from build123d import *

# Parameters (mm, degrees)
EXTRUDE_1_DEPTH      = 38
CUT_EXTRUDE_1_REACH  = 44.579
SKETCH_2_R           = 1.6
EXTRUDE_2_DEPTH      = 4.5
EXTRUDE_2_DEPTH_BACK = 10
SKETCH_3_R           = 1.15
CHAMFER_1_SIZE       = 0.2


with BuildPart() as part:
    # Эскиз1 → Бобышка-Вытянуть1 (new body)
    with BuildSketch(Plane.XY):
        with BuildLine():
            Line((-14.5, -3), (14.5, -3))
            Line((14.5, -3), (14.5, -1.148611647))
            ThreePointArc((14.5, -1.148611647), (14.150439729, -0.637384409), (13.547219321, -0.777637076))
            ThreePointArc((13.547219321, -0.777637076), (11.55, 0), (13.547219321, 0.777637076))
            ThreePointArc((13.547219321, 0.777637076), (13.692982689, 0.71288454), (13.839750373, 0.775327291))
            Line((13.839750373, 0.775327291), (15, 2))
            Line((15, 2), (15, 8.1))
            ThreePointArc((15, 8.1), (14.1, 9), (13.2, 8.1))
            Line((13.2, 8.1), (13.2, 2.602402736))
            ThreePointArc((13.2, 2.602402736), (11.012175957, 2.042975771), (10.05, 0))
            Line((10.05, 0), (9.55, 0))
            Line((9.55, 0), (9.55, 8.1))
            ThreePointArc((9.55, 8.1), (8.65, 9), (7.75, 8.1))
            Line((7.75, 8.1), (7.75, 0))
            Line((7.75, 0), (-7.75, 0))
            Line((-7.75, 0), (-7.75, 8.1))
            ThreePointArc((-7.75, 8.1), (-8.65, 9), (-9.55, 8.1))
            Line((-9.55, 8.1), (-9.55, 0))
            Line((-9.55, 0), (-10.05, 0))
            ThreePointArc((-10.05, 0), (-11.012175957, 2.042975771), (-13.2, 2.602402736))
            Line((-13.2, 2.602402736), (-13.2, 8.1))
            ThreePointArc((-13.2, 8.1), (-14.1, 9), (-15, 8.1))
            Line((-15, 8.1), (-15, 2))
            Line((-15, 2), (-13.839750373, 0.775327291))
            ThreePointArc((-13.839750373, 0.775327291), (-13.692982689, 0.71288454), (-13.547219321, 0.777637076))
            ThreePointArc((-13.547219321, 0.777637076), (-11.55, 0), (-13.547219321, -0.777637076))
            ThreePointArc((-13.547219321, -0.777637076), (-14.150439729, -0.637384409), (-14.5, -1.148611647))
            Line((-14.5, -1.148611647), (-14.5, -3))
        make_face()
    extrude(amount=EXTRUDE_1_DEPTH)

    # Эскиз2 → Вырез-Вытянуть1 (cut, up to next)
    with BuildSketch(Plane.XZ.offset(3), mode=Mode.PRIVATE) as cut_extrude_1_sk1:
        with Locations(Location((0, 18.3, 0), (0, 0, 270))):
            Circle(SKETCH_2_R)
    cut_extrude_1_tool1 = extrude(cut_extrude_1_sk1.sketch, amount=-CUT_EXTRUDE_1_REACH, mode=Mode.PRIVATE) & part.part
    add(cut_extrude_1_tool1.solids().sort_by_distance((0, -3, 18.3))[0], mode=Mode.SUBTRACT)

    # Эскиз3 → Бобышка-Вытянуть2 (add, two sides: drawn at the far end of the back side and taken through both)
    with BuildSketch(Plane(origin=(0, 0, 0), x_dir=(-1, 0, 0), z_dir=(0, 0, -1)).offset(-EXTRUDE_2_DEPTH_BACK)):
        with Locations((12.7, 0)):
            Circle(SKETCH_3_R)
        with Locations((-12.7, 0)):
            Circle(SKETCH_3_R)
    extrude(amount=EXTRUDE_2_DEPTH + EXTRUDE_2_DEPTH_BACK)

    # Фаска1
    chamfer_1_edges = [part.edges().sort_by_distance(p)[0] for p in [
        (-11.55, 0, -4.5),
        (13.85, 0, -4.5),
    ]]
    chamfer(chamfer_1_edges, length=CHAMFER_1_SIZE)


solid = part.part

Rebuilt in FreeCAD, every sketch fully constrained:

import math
import FreeCAD as App
import Part
import Sketcher


def edges_at(feature, points):
    """Names of the edges that pass closest to the given points."""
    edges = feature.Shape.Edges
    near = lambda p: min(range(len(edges)), key=lambda i: edges[i].distToShape(Part.Vertex(*p))[0])
    return sorted({f"Edge{near(p) + 1}" for p in points})

doc = App.newDocument("Part")
body = doc.addObject("PartDesign::Body", "Body")

# Sketch on XY plane
sketch1 = body.newObject("Sketcher::SketchObject", "Sketch")
sketch1.AttachmentSupport = (doc.getObject("XY_Plane"), [""])
sketch1.MapMode = "FlatFace"
sketch1.addGeometry(Part.LineSegment(App.Vector(-14.5, -3, 0), App.Vector(14.5, -3, 0)), False)
sketch1.addGeometry(Part.LineSegment(App.Vector(14.5, -3, 0), App.Vector(14.5, -1.15, 0)), False)
sketch1.addGeometry(Part.ArcOfCircle(Part.Circle(App.Vector(13.95, -1.15, 0), App.Vector(0, 0, 1), 0.55), math.radians(0), math.radians(137)), False)
sketch1.addGeometry(Part.ArcOfCircle(Part.Circle(App.Vector(12.7, 0, 0), App.Vector(0, 0, 1), 1.15), math.radians(43), math.radians(317)), False)
sketch1.addGeometry(Part.ArcOfCircle(Part.Circle(App.Vector(13.69, 0.91, 0), App.Vector(0, 0, 1), 0.2), math.radians(-137), math.radians(-43)), False)
sketch1.addGeometry(Part.LineSegment(App.Vector(13.84, 0.78, 0), App.Vector(15, 2, 0)), False)
sketch1.addGeometry(Part.LineSegment(App.Vector(15, 2, 0), App.Vector(15, 8.1, 0)), False)
sketch1.addGeometry(Part.ArcOfCircle(Part.Circle(App.Vector(14.1, 8.1, 0), App.Vector(0, 0, 1), 0.9), math.radians(0), math.radians(180)), False)
sketch1.addGeometry(Part.LineSegment(App.Vector(13.2, 8.1, 0), App.Vector(13.2, 2.6, 0)), False)
sketch1.addGeometry(Part.ArcOfCircle(Part.Circle(App.Vector(12.7, 0, 0), App.Vector(0, 0, 1), 2.65), math.radians(79), math.radians(180)), False)
sketch1.addGeometry(Part.LineSegment(App.Vector(10.05, 0, 0), App.Vector(9.55, 0, 0)), False)
sketch1.addGeometry(Part.LineSegment(App.Vector(9.55, 0, 0), App.Vector(9.55, 8.1, 0)), False)
sketch1.addGeometry(Part.ArcOfCircle(Part.Circle(App.Vector(8.65, 8.1, 0), App.Vector(0, 0, 1), 0.9), math.radians(0), math.radians(180)), False)
sketch1.addGeometry(Part.LineSegment(App.Vector(7.75, 8.1, 0), App.Vector(7.75, 0, 0)), False)
sketch1.addGeometry(Part.LineSegment(App.Vector(7.75, 0, 0), App.Vector(-7.75, 0, 0)), False)
sketch1.addGeometry(Part.LineSegment(App.Vector(-7.75, 0, 0), App.Vector(-7.75, 8.1, 0)), False)
sketch1.addGeometry(Part.ArcOfCircle(Part.Circle(App.Vector(-8.65, 8.1, 0), App.Vector(0, 0, 1), 0.9), math.radians(0), math.radians(180)), False)
sketch1.addGeometry(Part.LineSegment(App.Vector(-9.55, 8.1, 0), App.Vector(-9.55, 0, 0)), False)
sketch1.addGeometry(Part.LineSegment(App.Vector(-9.55, 0, 0), App.Vector(-10.05, 0, 0)), False)
sketch1.addGeometry(Part.ArcOfCircle(Part.Circle(App.Vector(-12.7, 0, 0), App.Vector(0, 0, 1), 2.65), math.radians(0), math.radians(101)), False)
sketch1.addGeometry(Part.LineSegment(App.Vector(-13.2, 2.6, 0), App.Vector(-13.2, 8.1, 0)), False)
sketch1.addGeometry(Part.ArcOfCircle(Part.Circle(App.Vector(-14.1, 8.1, 0), App.Vector(0, 0, 1), 0.9), math.radians(0), math.radians(180)), False)
sketch1.addGeometry(Part.LineSegment(App.Vector(-15, 8.1, 0), App.Vector(-15, 2, 0)), False)
sketch1.addGeometry(Part.LineSegment(App.Vector(-15, 2, 0), App.Vector(-13.84, 0.78, 0)), False)
sketch1.addGeometry(Part.ArcOfCircle(Part.Circle(App.Vector(-13.69, 0.91, 0), App.Vector(0, 0, 1), 0.2), math.radians(-137), math.radians(-43)), False)
sketch1.addGeometry(Part.ArcOfCircle(Part.Circle(App.Vector(-12.7, 0, 0), App.Vector(0, 0, 1), 1.15), math.radians(-137), math.radians(137)), False)
sketch1.addGeometry(Part.ArcOfCircle(Part.Circle(App.Vector(-13.95, -1.15, 0), App.Vector(0, 0, 1), 0.55), math.radians(43), math.radians(180)), False)
sketch1.addGeometry(Part.LineSegment(App.Vector(-14.5, -1.15, 0), App.Vector(-14.5, -3, 0)), False)
sketch1.addConstraint(Sketcher.Constraint("Coincident", 0, 2, 1, 1))
sketch1.addConstraint(Sketcher.Constraint("Tangent", 1, 2, 2, 1))
sketch1.addConstraint(Sketcher.Constraint("Tangent", 2, 2, 3, 2))
sketch1.addConstraint(Sketcher.Constraint("Tangent", 3, 1, 4, 1))
sketch1.addConstraint(Sketcher.Constraint("Tangent", 4, 2, 5, 1))
sketch1.addConstraint(Sketcher.Constraint("Coincident", 5, 2, 6, 1))
sketch1.addConstraint(Sketcher.Constraint("Tangent", 6, 2, 7, 1))
sketch1.addConstraint(Sketcher.Constraint("Tangent", 7, 2, 8, 1))
sketch1.addConstraint(Sketcher.Constraint("Coincident", 8, 2, 9, 1))
sketch1.addConstraint(Sketcher.Constraint("Coincident", 9, 2, 10, 1))
sketch1.addConstraint(Sketcher.Constraint("Coincident", 10, 2, 11, 1))
sketch1.addConstraint(Sketcher.Constraint("Tangent", 11, 2, 12, 1))
sketch1.addConstraint(Sketcher.Constraint("Tangent", 12, 2, 13, 1))
sketch1.addConstraint(Sketcher.Constraint("Coincident", 13, 2, 14, 1))
sketch1.addConstraint(Sketcher.Constraint("Coincident", 14, 2, 15, 1))
sketch1.addConstraint(Sketcher.Constraint("Tangent", 15, 2, 16, 1))
sketch1.addConstraint(Sketcher.Constraint("Tangent", 16, 2, 17, 1))
sketch1.addConstraint(Sketcher.Constraint("Coincident", 17, 2, 18, 1))
sketch1.addConstraint(Sketcher.Constraint("Coincident", 18, 2, 19, 1))
sketch1.addConstraint(Sketcher.Constraint("Coincident", 19, 2, 20, 1))
sketch1.addConstraint(Sketcher.Constraint("Tangent", 20, 2, 21, 1))
sketch1.addConstraint(Sketcher.Constraint("Tangent", 21, 2, 22, 1))
sketch1.addConstraint(Sketcher.Constraint("Coincident", 22, 2, 23, 1))
sketch1.addConstraint(Sketcher.Constraint("Tangent", 23, 2, 24, 1))
sketch1.addConstraint(Sketcher.Constraint("Tangent", 24, 2, 25, 2))
sketch1.addConstraint(Sketcher.Constraint("Tangent", 25, 1, 26, 1))
sketch1.addConstraint(Sketcher.Constraint("Tangent", 26, 2, 27, 1))
sketch1.addConstraint(Sketcher.Constraint("Coincident", 27, 2, 0, 1))
sketch1.addConstraint(Sketcher.Constraint("Horizontal", 0))
sketch1.addConstraint(Sketcher.Constraint("Vertical", 1))
sketch1.addConstraint(Sketcher.Constraint("Vertical", 6))
sketch1.addConstraint(Sketcher.Constraint("Vertical", 8))
sketch1.addConstraint(Sketcher.Constraint("Horizontal", 10))
sketch1.addConstraint(Sketcher.Constraint("Vertical", 11))
sketch1.addConstraint(Sketcher.Constraint("Vertical", 13))
sketch1.addConstraint(Sketcher.Constraint("Horizontal", 14))
sketch1.addConstraint(Sketcher.Constraint("Vertical", 15))
sketch1.addConstraint(Sketcher.Constraint("Vertical", 17))
sketch1.addConstraint(Sketcher.Constraint("Horizontal", 18))
sketch1.addConstraint(Sketcher.Constraint("Vertical", 20))
sketch1.addConstraint(Sketcher.Constraint("Vertical", 22))
sketch1.addConstraint(Sketcher.Constraint("Vertical", 27))
sketch1.addConstraint(Sketcher.Constraint("Coincident", 9, 3, 3, 3))
sketch1.addConstraint(Sketcher.Constraint("Coincident", 25, 3, 19, 3))
sketch1.addConstraint(Sketcher.Constraint("Equal", 7, 12))
sketch1.addConstraint(Sketcher.Constraint("Equal", 12, 16))
sketch1.addConstraint(Sketcher.Constraint("Equal", 9, 19))
sketch1.addConstraint(Sketcher.Constraint("Equal", 16, 21))
sketch1.addConstraint(Sketcher.Constraint("Equal", 4, 24))
sketch1.addConstraint(Sketcher.Constraint("Equal", 3, 25))
sketch1.addConstraint(Sketcher.Constraint("Equal", 2, 26))
sketch1.addConstraint(Sketcher.Constraint("Symmetric", 3, 3, 19, 3, -1, 1))
sketch1.addConstraint(Sketcher.Constraint("Symmetric", 13, 2, 14, 2, -1, 1))
sketch1.addConstraint(Sketcher.Constraint("Symmetric", 7, 3, 21, 3, -2))
sketch1.addConstraint(Sketcher.Constraint("Symmetric", 4, 3, 24, 3, -2))
sketch1.addConstraint(Sketcher.Constraint("PointOnObject", 9, 2, -1))
sketch1.addConstraint(Sketcher.Constraint("PointOnObject", 17, 2, -1))
sketch1.addConstraint(Sketcher.Constraint("Horizontal", 7, 3, 12, 3))
sketch1.addConstraint(Sketcher.Constraint("Horizontal", 12, 3, 16, 3))
sketch1.addConstraint(Sketcher.Constraint("Horizontal", 2, 3, 26, 3))
sketch1.addConstraint(Sketcher.Constraint("Horizontal", 5, 2, 22, 2))
sketch1.addConstraint(Sketcher.Constraint("Vertical", 2, 2, 3, 1))
sketch1.addConstraint(Sketcher.Constraint("Radius", 4, 0.2))
sketch1.addConstraint(Sketcher.Constraint("Radius", 7, 0.9))
sketch1.addConstraint(Sketcher.Constraint("DistanceX", 0, 1, 0, 2, 29.0))
sketch1.addConstraint(Sketcher.Constraint("Radius", 3, 1.15))
sketch1.addConstraint(Sketcher.Constraint("Radius", 9, 2.65))
sketch1.addConstraint(Sketcher.Constraint("DistanceX", 10, 2, 10, 1, 0.5))
sketch1.addConstraint(Sketcher.Constraint("DistanceX", 14, 2, 14, 1, 15.5))
sketch1.addConstraint(Sketcher.Constraint("DistanceY", 6, 1, 6, 2, 6.1))
sketch1.addConstraint(Sketcher.Constraint("DistanceY", 11, 1, 11, 2, 8.1))
sketch1.addConstraint(Sketcher.Constraint("DistanceY", 0, 2, -1, 1, 3.0))
sketch1.addConstraint(Sketcher.Constraint("DistanceX", -1, 1, 5, 2, 15.0))
sketch1.addConstraint(Sketcher.Constraint("Radius", 2, 0.548612))
pad1 = body.newObject("PartDesign::Pad", "Pad")
pad1.Profile = sketch1
pad1.Length = 38

# Sketch on XZ plane
sketch2 = body.newObject("Sketcher::SketchObject", "Sketch001")
sketch2.AttachmentSupport = (doc.getObject("XZ_Plane"), [""])
sketch2.MapMode = "FlatFace"
sketch2.AttachmentOffset = App.Placement(App.Vector(0, 0, 3), App.Rotation())
sketch2.addGeometry(Part.Circle(App.Vector(0, 18.3, 0), App.Vector(0, 0, 1), 1.6), False)
sketch2.addConstraint(Sketcher.Constraint("PointOnObject", 0, 3, -2))
sketch2.addConstraint(Sketcher.Constraint("Diameter", 0, 3.2))
sketch2.addConstraint(Sketcher.Constraint("DistanceY", -1, 1, 0, 3, 18.3))
pocket1 = body.newObject("PartDesign::Pocket", "Pocket")
pocket1.Profile = sketch2
pocket1.Type = "UpToFirst"

# Sketch on XY plane
sketch3 = body.newObject("Sketcher::SketchObject", "Sketch002")
sketch3.AttachmentSupport = (doc.getObject("XY_Plane"), [""])
sketch3.MapMode = "FlatFace"
sketch3.addGeometry(Part.Circle(App.Vector(-12.7, 0, 0), App.Vector(0, 0, 1), 1.1), False)
sketch3.addGeometry(Part.Circle(App.Vector(12.7, 0, 0), App.Vector(0, 0, 1), 1.1), False)
sketch3.addConstraint(Sketcher.Constraint("Equal", 0, 1))
sketch3.addConstraint(Sketcher.Constraint("Symmetric", 0, 3, 1, 3, -1, 1))
sketch3.addConstraint(Sketcher.Constraint("PointOnObject", 0, 3, -1))
sketch3.addConstraint(Sketcher.Constraint("Diameter", 0, 2.3))
sketch3.addConstraint(Sketcher.Constraint("DistanceX", 0, 3, -1, 1, 12.7))
pad2 = body.newObject("PartDesign::Pad", "Pad001")
pad2.Profile = sketch3
pad2.Type = "TwoLengths"
pad2.Length = 4.5
pad2.Length2 = 10
pad2.Reversed = True
doc.recompute()

chamfer = body.newObject("PartDesign::Chamfer", "Chamfer")
chamfer.Base = (pad2, edges_at(pad2, [(-11.55, 0, -4.5), (13.85, 0, -4.5)]))
chamfer.Size = 0.2

doc.recompute()
